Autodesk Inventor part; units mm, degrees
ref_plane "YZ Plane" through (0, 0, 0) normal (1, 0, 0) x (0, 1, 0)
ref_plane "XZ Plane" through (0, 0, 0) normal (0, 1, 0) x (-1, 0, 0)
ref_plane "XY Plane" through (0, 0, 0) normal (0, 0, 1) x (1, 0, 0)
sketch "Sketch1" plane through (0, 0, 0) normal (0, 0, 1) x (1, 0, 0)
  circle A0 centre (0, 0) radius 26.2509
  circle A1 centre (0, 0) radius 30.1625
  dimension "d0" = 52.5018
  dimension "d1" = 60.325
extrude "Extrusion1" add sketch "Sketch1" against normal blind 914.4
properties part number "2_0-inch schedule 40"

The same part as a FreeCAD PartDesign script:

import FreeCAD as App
import Part
import Sketcher

V = App.Vector
Q = App.Units.Quantity

doc = App.newDocument("Part")
params = doc.addObject("Spreadsheet::Sheet", "Params")
for row, (alias, value) in enumerate([
    ("sketch1_diameter", "2.375 in"),
    ("sketch1_diameter2", "2.067 in"),
    ("pad1_length", "36 in"),
], start=1):
    params.set(f"A{row}", alias)
    params.set(f"B{row}", "=" + value)
    params.setAlias(f"B{row}", alias)

body = doc.addObject("PartDesign::Body", "Body")

sketch1 = body.newObject("Sketcher::SketchObject", "Sketch")
sketch1.AttachmentSupport = (doc.getObject("XY_Plane"), [""])
sketch1.MapMode = "FlatFace"
sketch1.addGeometry([
    Part.Circle(V(0, 0, 0), V(0, 0, 1), 30),
    Part.Circle(V(0, 0, 0), V(0, 0, 1), 26),
], False)
sketch1.addConstraint([
    Sketcher.Constraint("Coincident", 0, 3, -1, 1),
    Sketcher.Constraint("Coincident", 1, 3, -1, 1),
    Sketcher.Constraint("Diameter", 0, Q("2.375 in")),
    Sketcher.Constraint("Diameter", 1, Q("2.067 in")),
])
sketch1.setExpression("Constraints[2]", "Params.sketch1_diameter")
sketch1.setExpression("Constraints[3]", "Params.sketch1_diameter2")
pad1 = body.newObject("PartDesign::Pad", "Pad")
pad1.Profile = sketch1
pad1.setExpression("Length", "Params.pad1_length")
pad1.Reversed = True

doc.recompute()
